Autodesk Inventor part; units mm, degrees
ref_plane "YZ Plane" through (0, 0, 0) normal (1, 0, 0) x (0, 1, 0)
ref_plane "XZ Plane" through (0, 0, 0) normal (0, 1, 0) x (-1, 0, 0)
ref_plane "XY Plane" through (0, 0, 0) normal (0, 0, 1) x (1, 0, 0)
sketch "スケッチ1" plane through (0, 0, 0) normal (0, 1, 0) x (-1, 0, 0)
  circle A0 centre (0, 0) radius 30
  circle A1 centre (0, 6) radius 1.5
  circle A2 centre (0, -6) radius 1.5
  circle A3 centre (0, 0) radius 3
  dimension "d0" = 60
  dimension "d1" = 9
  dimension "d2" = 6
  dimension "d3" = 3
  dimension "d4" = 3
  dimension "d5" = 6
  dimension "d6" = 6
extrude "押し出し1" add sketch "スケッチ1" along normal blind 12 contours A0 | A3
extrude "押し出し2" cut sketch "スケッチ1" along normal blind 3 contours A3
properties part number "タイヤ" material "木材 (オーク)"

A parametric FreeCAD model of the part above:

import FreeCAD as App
import Part
import Sketcher
from FreeCAD import Vector

doc = App.newDocument("Part")
body = doc.addObject("PartDesign::Body", "Body")

sketch1 = body.newObject("Sketcher::SketchObject", "Sketch")
sketch1.AttachmentSupport = (doc.getObject("XZ_Plane"), [""])
sketch1.MapMode = "FlatFace"
sketch1.addGeometry([
    Part.Circle(Vector(0, 0, 0), Vector(0, 0, 1), 30),
    Part.Circle(Vector(0, -6, 0), Vector(0, 0, 1), 1.5),
    Part.Circle(Vector(0, 6, 0), Vector(0, 0, 1), 1.5),
], False)
sketch1.addConstraint([
    Sketcher.Constraint("Coincident", 0, 3, -1, 1),
    Sketcher.Constraint("Equal", 1, 2),
    Sketcher.Constraint("Symmetric", 1, 3, 2, 3, -1, 1),
    Sketcher.Constraint("PointOnObject", 1, 3, -2),
    Sketcher.Constraint("Diameter", 0, 60.0),
    Sketcher.Constraint("Diameter", 1, 3.0),
    Sketcher.Constraint("DistanceY", 1, 3, -1, 1, 6.0),
])
pad1 = body.newObject("PartDesign::Pad", "Pad")
pad1.Profile = sketch1
pad1.Length = 12
pad1.Reversed = True

sketch2 = body.newObject("Sketcher::SketchObject", "Sketch001")
sketch2.AttachmentSupport = (doc.getObject("XZ_Plane"), [""])
sketch2.MapMode = "FlatFace"
sketch2.addGeometry(Part.Circle(Vector(0, 0, 0), Vector(0, 0, 1), 3), False)
sketch2.addConstraint([
    Sketcher.Constraint("Coincident", 0, 3, -1, 1),
    Sketcher.Constraint("Diameter", 0, 6.0),
])
pocket1 = body.newObject("PartDesign::Pocket", "Pocket")
pocket1.Profile = sketch2
pocket1.Length = 3

doc.recompute()
